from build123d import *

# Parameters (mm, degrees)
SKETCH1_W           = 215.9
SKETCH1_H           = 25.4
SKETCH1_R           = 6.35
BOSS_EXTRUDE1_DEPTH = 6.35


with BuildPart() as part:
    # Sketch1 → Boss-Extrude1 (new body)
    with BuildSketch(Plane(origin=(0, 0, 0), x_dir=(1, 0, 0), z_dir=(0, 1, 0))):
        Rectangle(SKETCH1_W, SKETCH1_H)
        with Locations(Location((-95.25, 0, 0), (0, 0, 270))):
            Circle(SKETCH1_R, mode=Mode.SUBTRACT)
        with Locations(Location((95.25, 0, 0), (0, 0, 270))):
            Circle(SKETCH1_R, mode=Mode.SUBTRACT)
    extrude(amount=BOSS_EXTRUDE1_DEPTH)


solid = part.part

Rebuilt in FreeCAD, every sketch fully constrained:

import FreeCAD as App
import Part
import Sketcher
Q = App.Units.Quantity


def add_polygon(sketch, points):
    """Adds a closed chain of lines whose ends are joined by coincident constraints."""
    first, n = sketch.GeometryCount, len(points)
    for a, b in zip(points, points[1:] + points[:1]):
        sketch.addGeometry(Part.LineSegment(App.Vector(*a, 0), App.Vector(*b, 0)), False)
    for i in range(n):
        sketch.addConstraint(Sketcher.Constraint("Coincident", first + i, 2, first + (i + 1) % n, 1))

doc = App.newDocument("Part")
body = doc.addObject("PartDesign::Body", "Body")

# Sketch on XZ plane
sketch1 = body.newObject("Sketcher::SketchObject", "Sketch")
sketch1.AttachmentSupport = (doc.getObject("XZ_Plane"), [""])
sketch1.MapMode = "FlatFace"
add_polygon(sketch1, [(-107.95, -12.7), (-107.95, 12.7), (107.95, 12.7), (107.95, -12.7)])  # lines 0-3
sketch1.addGeometry(Part.Circle(App.Vector(-95.25, 0, 0), App.Vector(0, 0, 1), 6.35), False)  # 4
sketch1.addGeometry(Part.Circle(App.Vector(95.25, 0, 0), App.Vector(0, 0, 1), 6.35), False)  # 5
sketch1.addConstraint(Sketcher.Constraint("Vertical", 0))
sketch1.addConstraint(Sketcher.Constraint("Horizontal", 1))
sketch1.addConstraint(Sketcher.Constraint("Vertical", 2))
sketch1.addConstraint(Sketcher.Constraint("Horizontal", 3))
sketch1.addConstraint(Sketcher.Constraint("Equal", 4, 5))
sketch1.addConstraint(Sketcher.Constraint("Symmetric", 4, 3, 5, 3, -1, 1))
sketch1.addConstraint(Sketcher.Constraint("Symmetric", 0, 2, 2, 2, -1, 1))
sketch1.addConstraint(Sketcher.Constraint("PointOnObject", 4, 3, -1))
sketch1.addConstraint(Sketcher.Constraint("Diameter", 4, Q("0.5 in")))
sketch1.addConstraint(Sketcher.Constraint("DistanceY", 0, 1, 0, 2, Q("1 in")))
sketch1.addConstraint(Sketcher.Constraint("DistanceX", 1, 1, 1, 2, Q("8.5 in")))
sketch1.addConstraint(Sketcher.Constraint("DistanceX", 0, 2, 5, 3, Q("8 in")))
pad1 = body.newObject("PartDesign::Pad", "Pad")
pad1.Profile = sketch1
pad1.Length = Q("0.25 in")
pad1.Reversed = True

doc.recompute()
